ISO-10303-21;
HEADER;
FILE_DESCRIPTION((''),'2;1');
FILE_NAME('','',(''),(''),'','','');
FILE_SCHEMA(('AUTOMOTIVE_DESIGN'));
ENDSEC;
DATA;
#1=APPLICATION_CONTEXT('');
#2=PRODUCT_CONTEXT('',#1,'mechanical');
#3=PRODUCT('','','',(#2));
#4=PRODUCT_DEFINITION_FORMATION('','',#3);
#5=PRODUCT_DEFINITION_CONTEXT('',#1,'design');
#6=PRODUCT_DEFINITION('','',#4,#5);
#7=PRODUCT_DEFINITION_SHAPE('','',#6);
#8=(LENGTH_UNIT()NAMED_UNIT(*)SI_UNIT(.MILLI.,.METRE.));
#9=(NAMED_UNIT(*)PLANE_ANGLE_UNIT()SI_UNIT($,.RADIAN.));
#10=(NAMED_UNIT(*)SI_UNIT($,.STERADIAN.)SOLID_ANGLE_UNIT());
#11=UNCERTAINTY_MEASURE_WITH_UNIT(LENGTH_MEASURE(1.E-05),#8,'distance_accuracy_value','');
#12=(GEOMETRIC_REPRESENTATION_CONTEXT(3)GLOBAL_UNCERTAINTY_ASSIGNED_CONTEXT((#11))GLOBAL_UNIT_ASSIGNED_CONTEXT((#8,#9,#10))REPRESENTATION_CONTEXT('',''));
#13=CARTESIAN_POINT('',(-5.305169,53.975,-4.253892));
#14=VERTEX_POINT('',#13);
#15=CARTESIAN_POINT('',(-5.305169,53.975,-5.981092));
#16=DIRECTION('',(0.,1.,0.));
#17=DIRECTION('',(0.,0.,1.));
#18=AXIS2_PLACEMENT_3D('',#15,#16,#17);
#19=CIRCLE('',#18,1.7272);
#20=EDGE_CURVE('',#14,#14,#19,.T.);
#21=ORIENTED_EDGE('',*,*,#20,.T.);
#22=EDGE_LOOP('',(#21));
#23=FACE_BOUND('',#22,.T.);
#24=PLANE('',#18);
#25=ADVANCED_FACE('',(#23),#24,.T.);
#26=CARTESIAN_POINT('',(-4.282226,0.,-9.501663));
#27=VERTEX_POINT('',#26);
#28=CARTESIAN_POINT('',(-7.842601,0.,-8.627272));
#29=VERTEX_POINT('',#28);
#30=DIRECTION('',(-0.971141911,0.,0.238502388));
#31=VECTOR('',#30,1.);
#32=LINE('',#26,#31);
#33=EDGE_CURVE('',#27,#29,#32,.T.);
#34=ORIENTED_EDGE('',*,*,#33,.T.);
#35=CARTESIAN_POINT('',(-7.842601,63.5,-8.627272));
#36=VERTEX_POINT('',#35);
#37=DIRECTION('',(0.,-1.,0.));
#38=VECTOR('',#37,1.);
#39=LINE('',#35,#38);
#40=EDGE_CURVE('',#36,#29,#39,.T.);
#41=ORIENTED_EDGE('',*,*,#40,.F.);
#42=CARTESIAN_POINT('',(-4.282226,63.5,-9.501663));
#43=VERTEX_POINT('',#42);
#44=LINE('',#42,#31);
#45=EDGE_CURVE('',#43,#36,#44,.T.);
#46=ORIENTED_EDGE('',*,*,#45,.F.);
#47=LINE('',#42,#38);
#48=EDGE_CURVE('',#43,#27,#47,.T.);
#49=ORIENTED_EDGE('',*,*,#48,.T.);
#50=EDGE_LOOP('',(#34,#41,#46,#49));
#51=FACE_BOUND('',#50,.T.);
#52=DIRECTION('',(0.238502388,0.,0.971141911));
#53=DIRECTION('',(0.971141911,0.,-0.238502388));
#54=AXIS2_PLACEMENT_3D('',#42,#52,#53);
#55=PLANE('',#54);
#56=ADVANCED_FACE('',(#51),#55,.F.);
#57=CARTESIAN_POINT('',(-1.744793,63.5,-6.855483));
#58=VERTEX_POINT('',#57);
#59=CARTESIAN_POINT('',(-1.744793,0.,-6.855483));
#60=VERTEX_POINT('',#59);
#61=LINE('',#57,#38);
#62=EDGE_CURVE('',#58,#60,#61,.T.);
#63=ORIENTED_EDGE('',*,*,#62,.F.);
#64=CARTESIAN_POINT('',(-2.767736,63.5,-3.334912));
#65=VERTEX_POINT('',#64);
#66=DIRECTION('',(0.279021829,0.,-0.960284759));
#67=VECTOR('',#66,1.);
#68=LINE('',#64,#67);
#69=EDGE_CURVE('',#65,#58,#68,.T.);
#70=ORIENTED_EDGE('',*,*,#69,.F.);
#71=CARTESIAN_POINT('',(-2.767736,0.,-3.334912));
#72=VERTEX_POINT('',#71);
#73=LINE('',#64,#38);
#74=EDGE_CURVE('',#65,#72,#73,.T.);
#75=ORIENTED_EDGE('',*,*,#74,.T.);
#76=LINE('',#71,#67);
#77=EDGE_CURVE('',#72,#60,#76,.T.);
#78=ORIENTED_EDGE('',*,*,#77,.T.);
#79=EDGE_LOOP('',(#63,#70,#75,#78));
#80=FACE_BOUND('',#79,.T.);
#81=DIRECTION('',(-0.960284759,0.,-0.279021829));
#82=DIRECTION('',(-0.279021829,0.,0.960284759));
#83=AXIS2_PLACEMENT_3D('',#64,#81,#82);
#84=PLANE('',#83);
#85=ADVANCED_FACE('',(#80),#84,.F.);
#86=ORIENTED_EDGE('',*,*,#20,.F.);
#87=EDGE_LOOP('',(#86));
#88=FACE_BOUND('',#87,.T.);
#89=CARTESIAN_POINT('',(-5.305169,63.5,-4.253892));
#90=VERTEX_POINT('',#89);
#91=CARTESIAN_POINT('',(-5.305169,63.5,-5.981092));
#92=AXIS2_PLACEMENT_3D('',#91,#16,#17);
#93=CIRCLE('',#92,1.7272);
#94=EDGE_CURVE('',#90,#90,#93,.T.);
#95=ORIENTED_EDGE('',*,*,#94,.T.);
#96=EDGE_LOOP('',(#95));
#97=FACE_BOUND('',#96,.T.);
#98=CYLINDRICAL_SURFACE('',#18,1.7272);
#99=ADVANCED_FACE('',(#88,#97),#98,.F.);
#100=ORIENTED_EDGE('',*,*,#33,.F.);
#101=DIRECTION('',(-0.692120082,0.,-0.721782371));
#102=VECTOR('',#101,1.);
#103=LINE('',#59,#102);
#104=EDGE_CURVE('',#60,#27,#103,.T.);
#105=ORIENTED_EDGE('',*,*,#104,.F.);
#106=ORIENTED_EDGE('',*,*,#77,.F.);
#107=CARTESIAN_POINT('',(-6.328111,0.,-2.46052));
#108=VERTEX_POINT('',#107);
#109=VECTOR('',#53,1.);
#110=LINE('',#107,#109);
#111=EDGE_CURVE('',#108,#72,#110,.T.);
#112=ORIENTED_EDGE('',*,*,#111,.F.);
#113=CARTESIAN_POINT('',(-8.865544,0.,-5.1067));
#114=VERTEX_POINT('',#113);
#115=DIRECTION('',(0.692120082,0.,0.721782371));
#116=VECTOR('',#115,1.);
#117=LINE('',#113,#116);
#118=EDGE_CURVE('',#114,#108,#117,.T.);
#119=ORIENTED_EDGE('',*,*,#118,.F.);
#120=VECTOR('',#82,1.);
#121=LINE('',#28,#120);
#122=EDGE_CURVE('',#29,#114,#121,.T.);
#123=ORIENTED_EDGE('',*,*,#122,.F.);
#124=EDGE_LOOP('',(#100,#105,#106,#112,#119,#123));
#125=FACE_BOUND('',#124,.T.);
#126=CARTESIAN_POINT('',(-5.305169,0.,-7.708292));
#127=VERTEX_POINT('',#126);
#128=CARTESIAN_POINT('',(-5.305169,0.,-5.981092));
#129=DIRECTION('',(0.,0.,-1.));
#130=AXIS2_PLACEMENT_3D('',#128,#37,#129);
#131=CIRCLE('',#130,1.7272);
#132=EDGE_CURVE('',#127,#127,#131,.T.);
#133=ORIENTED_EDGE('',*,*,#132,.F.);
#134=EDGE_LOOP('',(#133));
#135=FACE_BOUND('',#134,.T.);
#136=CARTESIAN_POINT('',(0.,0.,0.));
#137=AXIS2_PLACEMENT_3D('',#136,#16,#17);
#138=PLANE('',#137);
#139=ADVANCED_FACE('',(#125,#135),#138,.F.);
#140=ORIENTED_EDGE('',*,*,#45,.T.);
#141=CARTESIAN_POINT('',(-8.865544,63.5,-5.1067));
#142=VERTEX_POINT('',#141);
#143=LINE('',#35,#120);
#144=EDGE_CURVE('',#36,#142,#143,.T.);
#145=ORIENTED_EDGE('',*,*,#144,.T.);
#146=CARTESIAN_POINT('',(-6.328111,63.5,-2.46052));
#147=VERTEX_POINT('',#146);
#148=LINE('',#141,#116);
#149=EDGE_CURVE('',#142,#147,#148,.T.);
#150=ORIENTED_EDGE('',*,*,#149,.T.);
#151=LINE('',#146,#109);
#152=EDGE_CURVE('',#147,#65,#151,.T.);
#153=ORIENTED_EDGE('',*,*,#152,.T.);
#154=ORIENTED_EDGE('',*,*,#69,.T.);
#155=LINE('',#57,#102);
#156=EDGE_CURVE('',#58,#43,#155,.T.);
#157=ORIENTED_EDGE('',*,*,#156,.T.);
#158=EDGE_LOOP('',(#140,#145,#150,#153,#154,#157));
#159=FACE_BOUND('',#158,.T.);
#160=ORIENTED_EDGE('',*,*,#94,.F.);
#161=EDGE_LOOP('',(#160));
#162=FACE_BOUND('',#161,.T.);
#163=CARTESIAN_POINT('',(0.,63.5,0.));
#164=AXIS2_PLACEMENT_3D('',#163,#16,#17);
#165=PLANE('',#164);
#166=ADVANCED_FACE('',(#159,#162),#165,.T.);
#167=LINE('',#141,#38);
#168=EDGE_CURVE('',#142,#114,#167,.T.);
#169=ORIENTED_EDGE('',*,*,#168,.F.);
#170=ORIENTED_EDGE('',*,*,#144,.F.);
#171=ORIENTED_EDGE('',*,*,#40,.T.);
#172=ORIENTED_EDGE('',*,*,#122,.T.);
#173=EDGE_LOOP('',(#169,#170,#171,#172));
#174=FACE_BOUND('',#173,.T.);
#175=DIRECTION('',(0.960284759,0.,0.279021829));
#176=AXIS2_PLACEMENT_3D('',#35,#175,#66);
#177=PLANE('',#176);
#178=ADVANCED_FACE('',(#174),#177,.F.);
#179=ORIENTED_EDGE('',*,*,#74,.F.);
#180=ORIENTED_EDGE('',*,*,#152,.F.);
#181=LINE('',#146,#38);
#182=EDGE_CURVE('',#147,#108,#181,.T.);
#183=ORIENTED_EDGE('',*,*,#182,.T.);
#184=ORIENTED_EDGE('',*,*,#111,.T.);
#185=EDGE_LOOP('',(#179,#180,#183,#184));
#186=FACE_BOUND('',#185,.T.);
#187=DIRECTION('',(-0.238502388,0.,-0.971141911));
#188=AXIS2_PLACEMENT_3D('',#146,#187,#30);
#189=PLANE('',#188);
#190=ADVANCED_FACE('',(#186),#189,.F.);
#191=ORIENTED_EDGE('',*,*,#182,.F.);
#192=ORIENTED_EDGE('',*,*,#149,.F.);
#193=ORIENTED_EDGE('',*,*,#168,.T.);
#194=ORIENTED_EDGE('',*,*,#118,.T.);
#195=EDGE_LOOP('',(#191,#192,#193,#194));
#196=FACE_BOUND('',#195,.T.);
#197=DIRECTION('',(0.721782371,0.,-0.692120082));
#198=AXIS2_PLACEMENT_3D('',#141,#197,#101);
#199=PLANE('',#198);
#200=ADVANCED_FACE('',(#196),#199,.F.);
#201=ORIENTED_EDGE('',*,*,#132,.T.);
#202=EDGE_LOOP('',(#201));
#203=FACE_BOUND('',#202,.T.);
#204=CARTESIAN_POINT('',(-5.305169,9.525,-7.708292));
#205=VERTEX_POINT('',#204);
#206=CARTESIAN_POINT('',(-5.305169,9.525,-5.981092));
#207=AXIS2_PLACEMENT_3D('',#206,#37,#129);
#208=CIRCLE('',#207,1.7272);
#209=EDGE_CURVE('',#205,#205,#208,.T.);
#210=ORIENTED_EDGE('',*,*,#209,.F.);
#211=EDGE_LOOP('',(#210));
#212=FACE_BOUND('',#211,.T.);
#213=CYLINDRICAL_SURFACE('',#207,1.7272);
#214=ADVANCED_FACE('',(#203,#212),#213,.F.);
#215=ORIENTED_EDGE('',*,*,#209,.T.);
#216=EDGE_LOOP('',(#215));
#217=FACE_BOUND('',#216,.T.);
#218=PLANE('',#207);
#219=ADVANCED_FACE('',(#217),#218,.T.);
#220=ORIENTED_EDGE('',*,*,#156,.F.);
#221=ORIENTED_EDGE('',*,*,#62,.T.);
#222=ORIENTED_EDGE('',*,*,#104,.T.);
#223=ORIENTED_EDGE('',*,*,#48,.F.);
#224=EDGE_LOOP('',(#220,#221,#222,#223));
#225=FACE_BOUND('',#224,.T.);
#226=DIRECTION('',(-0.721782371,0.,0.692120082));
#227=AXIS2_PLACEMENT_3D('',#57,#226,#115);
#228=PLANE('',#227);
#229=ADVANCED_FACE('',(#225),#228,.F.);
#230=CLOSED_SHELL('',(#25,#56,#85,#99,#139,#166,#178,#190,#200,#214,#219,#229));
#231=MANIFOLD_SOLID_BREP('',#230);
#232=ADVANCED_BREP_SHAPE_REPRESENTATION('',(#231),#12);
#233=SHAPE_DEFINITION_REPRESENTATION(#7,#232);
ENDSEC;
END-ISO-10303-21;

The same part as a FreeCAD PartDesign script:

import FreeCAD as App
import Part
import Sketcher

V = App.Vector
Q = App.Units.Quantity

doc = App.newDocument("Part")
params = doc.addObject("Spreadsheet::Sheet", "Params")
for row, (alias, value) in enumerate([
    ("pad1_length", "2.5 in"),
    ("sketch2_diameter", "0.136 in"),
    ("pocket1_length", "0.375 in"),
    ("sketch3_diameter", "0.136 in"),
    ("pocket2_length", "0.375 in"),
], start=1):
    params.set(f"A{row}", alias)
    params.set(f"B{row}", "=" + value)
    params.setAlias(f"B{row}", alias)

body = doc.addObject("PartDesign::Body", "Body")

# Sketch on XZ plane
sketch1 = body.newObject("Sketcher::SketchObject", "Sketch")
sketch1.AttachmentSupport = (doc.getObject("XZ_Plane"), [""])
sketch1.MapMode = "FlatFace"
sketch1.addGeometry([
    Part.LineSegment(V(-2.8, -3.3, 0), V(-1.7, -6.9, 0)),  # 0
    Part.LineSegment(V(-1.7, -6.9, 0), V(-4.3, -9.5, 0)),  # 1
    Part.LineSegment(V(-4.3, -9.5, 0), V(-7.8, -8.6, 0)),  # 2
    Part.LineSegment(V(-7.8, -8.6, 0), V(-8.9, -5.1, 0)),  # 3
    Part.LineSegment(V(-8.9, -5.1, 0), V(-6.3, -2.5, 0)),  # 4
    Part.LineSegment(V(-6.3, -2.5, 0), V(-2.8, -3.3, 0)),  # 5
], False)
sketch1.addConstraint([
    Sketcher.Constraint("Coincident", 0, 2, 1, 1),
    Sketcher.Constraint("Coincident", 1, 2, 2, 1),
    Sketcher.Constraint("Coincident", 2, 2, 3, 1),
    Sketcher.Constraint("Coincident", 3, 2, 4, 1),
    Sketcher.Constraint("Coincident", 4, 2, 5, 1),
    Sketcher.Constraint("Coincident", 5, 2, 0, 1),
    Sketcher.Constraint("Parallel", 0, 3),
    Sketcher.Constraint("Parallel", 1, 4),
    Sketcher.Constraint("Parallel", 2, 5),
    Sketcher.Constraint("Equal", 0, 1),
    Sketcher.Constraint("Equal", 1, 2),
    Sketcher.Constraint("Equal", 2, 3),
    Sketcher.Constraint("DistanceX", 2, 2, -1, 1, 7.842601),
    Sketcher.Constraint("DistanceY", 3, 2, -1, 1, 5.1067),
    Sketcher.Constraint("DistanceY", 2, 2, -1, 1, 8.627272),
    Sketcher.Constraint("DistanceX", 4, 2, -1, 1, 6.328111),
    Sketcher.Constraint("DistanceY", 4, 2, -1, 1, 2.46052),
    Sketcher.Constraint("DistanceY", 5, 2, -1, 1, 3.334912),
])
pad1 = body.newObject("PartDesign::Pad", "Pad")
pad1.Profile = sketch1
pad1.setExpression("Length", "Params.pad1_length")
pad1.Reversed = True

# Sketch on XZ plane
sketch2 = body.newObject("Sketcher::SketchObject", "Sketch001")
sketch2.AttachmentSupport = (doc.getObject("XZ_Plane"), [""])
sketch2.MapMode = "FlatFace"
sketch2.AttachmentOffset = App.Placement(V(0, 0, -2.5 * 25.4), App.Rotation())
sketch2.addGeometry(Part.Circle(V(-5.3, -6, 0), V(0, 0, 1), 1.7), False)
sketch2.addConstraint([
    Sketcher.Constraint("Diameter", 0, Q("0.136 in")),
    Sketcher.Constraint("DistanceX", 0, 3, -1, 1, 5.305169),
    Sketcher.Constraint("DistanceY", 0, 3, -1, 1, 5.981092),
])
sketch2.setExpression("Constraints[0]", "Params.sketch2_diameter")
pocket1 = body.newObject("PartDesign::Pocket", "Pocket")
pocket1.Profile = sketch2
pocket1.setExpression("Length", "Params.pocket1_length")
pocket1.Reversed = True

# Sketch on XZ plane
sketch3 = body.newObject("Sketcher::SketchObject", "Sketch002")
sketch3.AttachmentSupport = (doc.getObject("XZ_Plane"), [""])
sketch3.MapMode = "FlatFace"
sketch3.addGeometry(Part.Circle(V(-5.3, -6, 0), V(0, 0, 1), 1.7), False)
sketch3.addConstraint([
    Sketcher.Constraint("Diameter", 0, Q("0.136 in")),
    Sketcher.Constraint("DistanceX", 0, 3, -1, 1, 5.305169),
    Sketcher.Constraint("DistanceY", 0, 3, -1, 1, 5.981092),
])
sketch3.setExpression("Constraints[0]", "Params.sketch3_diameter")
pocket2 = body.newObject("PartDesign::Pocket", "Pocket001")
pocket2.Profile = sketch3
pocket2.setExpression("Length", "Params.pocket2_length")

doc.recompute()
